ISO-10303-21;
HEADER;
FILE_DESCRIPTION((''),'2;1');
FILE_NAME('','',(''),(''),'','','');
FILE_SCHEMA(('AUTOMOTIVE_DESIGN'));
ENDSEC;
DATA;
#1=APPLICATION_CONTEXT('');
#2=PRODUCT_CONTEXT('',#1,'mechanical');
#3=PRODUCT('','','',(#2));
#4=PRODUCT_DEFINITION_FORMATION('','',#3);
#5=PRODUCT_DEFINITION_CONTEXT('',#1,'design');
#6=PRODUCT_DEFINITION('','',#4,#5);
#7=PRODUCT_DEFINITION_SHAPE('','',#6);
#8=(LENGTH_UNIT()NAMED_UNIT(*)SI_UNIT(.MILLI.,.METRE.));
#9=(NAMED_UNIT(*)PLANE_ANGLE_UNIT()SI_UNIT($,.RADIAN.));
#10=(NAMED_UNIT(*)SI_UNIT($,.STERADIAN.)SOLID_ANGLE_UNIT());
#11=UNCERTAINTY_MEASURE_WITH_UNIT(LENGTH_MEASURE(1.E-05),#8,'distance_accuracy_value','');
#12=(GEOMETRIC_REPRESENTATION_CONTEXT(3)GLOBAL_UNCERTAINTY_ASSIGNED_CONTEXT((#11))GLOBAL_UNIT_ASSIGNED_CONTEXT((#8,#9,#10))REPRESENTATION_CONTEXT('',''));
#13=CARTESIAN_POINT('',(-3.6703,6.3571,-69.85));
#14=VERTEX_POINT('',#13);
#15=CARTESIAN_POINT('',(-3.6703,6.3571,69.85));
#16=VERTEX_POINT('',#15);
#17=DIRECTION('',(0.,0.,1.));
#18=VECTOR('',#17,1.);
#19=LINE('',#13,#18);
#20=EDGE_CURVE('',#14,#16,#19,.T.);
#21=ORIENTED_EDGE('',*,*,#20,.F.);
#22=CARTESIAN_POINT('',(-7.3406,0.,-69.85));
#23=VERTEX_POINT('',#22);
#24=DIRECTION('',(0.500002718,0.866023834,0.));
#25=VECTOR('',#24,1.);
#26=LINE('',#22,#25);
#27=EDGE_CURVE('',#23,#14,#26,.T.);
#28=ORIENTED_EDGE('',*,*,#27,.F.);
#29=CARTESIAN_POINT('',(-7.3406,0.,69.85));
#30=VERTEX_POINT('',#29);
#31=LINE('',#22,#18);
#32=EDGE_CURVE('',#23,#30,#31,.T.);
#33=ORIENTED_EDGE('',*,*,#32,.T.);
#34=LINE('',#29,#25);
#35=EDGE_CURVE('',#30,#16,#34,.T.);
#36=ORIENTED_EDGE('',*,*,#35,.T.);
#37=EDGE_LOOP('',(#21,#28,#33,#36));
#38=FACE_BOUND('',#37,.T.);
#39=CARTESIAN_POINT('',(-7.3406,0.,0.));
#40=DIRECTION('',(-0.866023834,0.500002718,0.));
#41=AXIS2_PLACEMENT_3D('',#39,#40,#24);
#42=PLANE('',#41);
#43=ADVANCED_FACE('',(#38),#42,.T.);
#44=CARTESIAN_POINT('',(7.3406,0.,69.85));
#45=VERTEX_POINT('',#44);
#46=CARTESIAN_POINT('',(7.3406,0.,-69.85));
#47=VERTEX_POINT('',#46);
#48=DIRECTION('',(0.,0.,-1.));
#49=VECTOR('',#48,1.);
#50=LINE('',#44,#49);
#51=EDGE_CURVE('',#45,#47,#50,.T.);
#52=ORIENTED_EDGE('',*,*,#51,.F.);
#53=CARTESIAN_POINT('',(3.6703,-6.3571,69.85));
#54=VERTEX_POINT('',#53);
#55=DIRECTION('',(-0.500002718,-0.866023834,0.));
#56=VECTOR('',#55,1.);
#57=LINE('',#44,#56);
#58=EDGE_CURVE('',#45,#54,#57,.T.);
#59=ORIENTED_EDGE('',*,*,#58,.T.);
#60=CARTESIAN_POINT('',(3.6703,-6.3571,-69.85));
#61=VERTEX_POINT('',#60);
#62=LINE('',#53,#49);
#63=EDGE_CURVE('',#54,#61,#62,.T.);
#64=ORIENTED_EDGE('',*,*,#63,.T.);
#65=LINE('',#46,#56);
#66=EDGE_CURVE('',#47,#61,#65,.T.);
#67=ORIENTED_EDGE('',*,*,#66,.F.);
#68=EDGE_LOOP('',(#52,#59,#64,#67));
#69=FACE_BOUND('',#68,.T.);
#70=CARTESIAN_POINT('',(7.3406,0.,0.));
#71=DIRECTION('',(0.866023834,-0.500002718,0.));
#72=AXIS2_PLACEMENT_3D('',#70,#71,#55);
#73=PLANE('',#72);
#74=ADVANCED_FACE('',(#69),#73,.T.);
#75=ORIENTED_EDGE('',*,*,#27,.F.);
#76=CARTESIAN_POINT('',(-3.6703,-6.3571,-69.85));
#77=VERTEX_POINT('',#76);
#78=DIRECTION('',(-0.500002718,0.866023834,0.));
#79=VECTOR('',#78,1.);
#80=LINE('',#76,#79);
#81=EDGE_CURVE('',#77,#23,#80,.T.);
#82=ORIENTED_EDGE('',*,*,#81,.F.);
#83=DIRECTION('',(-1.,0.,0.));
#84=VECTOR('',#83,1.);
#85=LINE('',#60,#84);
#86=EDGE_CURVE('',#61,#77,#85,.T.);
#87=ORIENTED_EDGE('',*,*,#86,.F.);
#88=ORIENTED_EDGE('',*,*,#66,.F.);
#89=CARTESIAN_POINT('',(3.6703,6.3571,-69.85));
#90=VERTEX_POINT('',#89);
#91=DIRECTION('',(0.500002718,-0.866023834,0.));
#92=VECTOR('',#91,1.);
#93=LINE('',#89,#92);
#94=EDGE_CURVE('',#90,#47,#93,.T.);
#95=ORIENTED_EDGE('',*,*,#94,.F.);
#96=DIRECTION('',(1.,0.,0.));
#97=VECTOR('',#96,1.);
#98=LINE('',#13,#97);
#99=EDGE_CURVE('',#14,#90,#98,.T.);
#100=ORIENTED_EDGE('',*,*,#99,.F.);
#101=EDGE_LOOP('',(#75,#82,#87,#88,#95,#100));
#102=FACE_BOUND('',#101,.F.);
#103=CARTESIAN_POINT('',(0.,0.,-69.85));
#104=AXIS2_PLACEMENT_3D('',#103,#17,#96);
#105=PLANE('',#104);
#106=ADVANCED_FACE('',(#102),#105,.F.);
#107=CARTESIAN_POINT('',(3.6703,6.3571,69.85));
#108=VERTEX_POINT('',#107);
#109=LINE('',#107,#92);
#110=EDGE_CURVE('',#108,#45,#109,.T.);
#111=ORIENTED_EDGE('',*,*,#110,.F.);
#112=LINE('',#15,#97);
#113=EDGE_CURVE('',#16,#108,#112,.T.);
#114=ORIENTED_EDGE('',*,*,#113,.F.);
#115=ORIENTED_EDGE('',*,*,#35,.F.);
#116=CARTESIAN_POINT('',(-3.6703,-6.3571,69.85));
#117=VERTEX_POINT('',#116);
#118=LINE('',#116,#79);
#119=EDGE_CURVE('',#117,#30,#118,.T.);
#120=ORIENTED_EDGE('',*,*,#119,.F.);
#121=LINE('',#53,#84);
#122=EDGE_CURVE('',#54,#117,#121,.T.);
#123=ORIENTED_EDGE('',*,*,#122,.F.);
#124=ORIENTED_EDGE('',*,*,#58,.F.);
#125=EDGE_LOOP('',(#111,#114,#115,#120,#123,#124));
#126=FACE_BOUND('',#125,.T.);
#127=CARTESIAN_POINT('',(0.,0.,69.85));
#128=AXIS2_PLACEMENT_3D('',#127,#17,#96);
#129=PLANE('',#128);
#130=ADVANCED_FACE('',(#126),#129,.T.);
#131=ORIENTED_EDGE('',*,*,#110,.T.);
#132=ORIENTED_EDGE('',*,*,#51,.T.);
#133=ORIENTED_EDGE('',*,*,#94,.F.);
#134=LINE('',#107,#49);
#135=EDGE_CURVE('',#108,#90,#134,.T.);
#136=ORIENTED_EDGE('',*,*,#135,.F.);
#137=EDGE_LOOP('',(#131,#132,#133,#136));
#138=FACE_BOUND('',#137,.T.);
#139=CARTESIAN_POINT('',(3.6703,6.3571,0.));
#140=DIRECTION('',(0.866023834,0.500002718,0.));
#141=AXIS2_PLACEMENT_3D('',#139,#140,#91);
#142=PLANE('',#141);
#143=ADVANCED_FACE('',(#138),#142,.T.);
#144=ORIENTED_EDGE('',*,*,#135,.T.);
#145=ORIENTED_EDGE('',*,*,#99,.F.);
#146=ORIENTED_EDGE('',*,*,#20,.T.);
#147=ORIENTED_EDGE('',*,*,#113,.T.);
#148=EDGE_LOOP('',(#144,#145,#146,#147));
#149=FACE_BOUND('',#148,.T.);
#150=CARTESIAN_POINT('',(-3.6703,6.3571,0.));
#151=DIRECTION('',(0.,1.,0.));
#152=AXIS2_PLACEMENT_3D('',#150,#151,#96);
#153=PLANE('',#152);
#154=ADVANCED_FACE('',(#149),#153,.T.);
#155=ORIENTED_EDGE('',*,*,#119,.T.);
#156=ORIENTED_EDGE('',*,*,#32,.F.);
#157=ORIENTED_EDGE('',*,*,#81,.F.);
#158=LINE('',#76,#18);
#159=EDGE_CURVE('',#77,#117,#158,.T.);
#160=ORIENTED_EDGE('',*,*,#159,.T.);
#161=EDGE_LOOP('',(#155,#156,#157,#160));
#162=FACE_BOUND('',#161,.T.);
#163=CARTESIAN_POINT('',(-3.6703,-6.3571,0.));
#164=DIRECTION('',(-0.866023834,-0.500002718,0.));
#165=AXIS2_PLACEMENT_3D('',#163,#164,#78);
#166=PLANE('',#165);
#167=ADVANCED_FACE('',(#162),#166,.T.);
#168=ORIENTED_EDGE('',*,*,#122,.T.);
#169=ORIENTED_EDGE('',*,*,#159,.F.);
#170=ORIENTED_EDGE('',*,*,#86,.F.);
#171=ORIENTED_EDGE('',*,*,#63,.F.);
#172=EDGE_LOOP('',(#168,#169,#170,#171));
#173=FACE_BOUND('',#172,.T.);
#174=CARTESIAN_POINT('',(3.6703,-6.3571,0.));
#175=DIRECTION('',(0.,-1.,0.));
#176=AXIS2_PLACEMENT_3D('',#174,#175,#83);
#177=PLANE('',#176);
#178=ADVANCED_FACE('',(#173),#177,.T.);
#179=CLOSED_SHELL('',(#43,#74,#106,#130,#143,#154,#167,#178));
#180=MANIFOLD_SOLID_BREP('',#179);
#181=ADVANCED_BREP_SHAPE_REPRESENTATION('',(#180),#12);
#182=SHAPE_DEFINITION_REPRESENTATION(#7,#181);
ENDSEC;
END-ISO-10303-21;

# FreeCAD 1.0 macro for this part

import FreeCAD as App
import Part
import Sketcher

V = App.Vector
Q = App.Units.Quantity

doc = App.newDocument("Part")
body = doc.addObject("PartDesign::Body", "Body")

sketch1 = body.newObject("Sketcher::SketchObject", "Sketch")
sketch1.AttachmentSupport = (doc.getObject("XY_Plane"), [""])
sketch1.MapMode = "FlatFace"
sketch1.addGeometry(Part.LineSegment(V(3.6703, 6.3571, 0), V(-3.6703, 6.3571, 0)), False)
sketch1.addGeometry(Part.LineSegment(V(-3.6703, 6.3571, 0), V(-7.3406, 0, 0)), False)
sketch1.addGeometry(Part.LineSegment(V(-7.3406, 0, 0), V(-3.6703, -6.3571, 0)), False)
sketch1.addGeometry(Part.LineSegment(V(-3.6703, -6.3571, 0), V(3.6703, -6.3571, 0)), False)
sketch1.addGeometry(Part.LineSegment(V(3.6703, -6.3571, 0), V(7.3406, 0, 0)), False)
sketch1.addGeometry(Part.LineSegment(V(7.3406, 0, 0), V(3.6703, 6.3571, 0)), False)
sketch1.addConstraint(Sketcher.Constraint("Coincident", 0, 2, 1, 1))
sketch1.addConstraint(Sketcher.Constraint("Coincident", 1, 2, 2, 1))
sketch1.addConstraint(Sketcher.Constraint("Coincident", 2, 2, 3, 1))
sketch1.addConstraint(Sketcher.Constraint("Coincident", 3, 2, 4, 1))
sketch1.addConstraint(Sketcher.Constraint("Coincident", 4, 2, 5, 1))
sketch1.addConstraint(Sketcher.Constraint("Coincident", 5, 2, 0, 1))
sketch1.addConstraint(Sketcher.Constraint("Horizontal", 0))
sketch1.addConstraint(Sketcher.Constraint("Horizontal", 3))
sketch1.addConstraint(Sketcher.Constraint("Symmetric", 0, 2, 3, 2, -1, 1))
sketch1.addConstraint(Sketcher.Constraint("Symmetric", 1, 2, 4, 2, -1, 1))
sketch1.addConstraint(Sketcher.Constraint("PointOnObject", 1, 2, -1))
sketch1.addConstraint(Sketcher.Constraint("Parallel", 2, 5))
sketch1.addConstraint(Sketcher.Constraint("Vertical", 0, 2, 2, 2))
sketch1.addConstraint(Sketcher.Constraint("DistanceX", 0, 2, 0, 1, Q("0.289 in")))
sketch1.addConstraint(Sketcher.Constraint("Distance", 1, Q("0.289 in")))
sketch1.addConstraint(Sketcher.Constraint("DistanceX", 1, 2, -1, 1, Q("0.289 in")))
pad1 = body.newObject("PartDesign::Pad", "Pad")
pad1.Profile = sketch1
pad1.Length = Q("5.5 in")
pad1.Midplane = True

doc.recompute()
